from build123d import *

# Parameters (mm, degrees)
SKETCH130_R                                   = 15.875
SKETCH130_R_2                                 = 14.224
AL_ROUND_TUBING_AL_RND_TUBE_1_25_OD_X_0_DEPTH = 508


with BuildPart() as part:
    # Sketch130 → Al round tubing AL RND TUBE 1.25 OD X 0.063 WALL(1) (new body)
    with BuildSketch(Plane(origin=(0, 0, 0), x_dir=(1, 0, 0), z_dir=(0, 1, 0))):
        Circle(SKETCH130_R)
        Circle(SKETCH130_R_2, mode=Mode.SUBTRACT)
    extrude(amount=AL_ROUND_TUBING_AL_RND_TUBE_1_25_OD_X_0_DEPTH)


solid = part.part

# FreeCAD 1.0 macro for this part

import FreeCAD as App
import Part
import Sketcher

V = App.Vector
Q = App.Units.Quantity

doc = App.newDocument("Part")
params = doc.addObject("Spreadsheet::Sheet", "Params")
for row, (alias, value) in enumerate([
    ("sketch1_diameter", "1.25 in"),
    ("sketch1_diameter2", "1.12 in"),
    ("pad1_length", "20 in"),
], start=1):
    params.set(f"A{row}", alias)
    params.set(f"B{row}", "=" + value)
    params.setAlias(f"B{row}", alias)

body = doc.addObject("PartDesign::Body", "Body")

sketch1 = body.newObject("Sketcher::SketchObject", "Sketch")
sketch1.AttachmentSupport = (doc.getObject("XZ_Plane"), [""])
sketch1.MapMode = "FlatFace"
sketch1.addGeometry(Part.Circle(V(0, 0, 0), V(0, 0, 1), 16), False)
sketch1.addGeometry(Part.Circle(V(0, 0, 0), V(0, 0, 1), 14), False)
sketch1.addConstraint(Sketcher.Constraint("Coincident", 0, 3, -1, 1))
sketch1.addConstraint(Sketcher.Constraint("Coincident", 1, 3, -1, 1))
sketch1.addConstraint(Sketcher.Constraint("Diameter", 0, Q("1.25 in")))
sketch1.addConstraint(Sketcher.Constraint("Diameter", 1, Q("1.12 in")))
sketch1.setExpression("Constraints[2]", "Params.sketch1_diameter")
sketch1.setExpression("Constraints[3]", "Params.sketch1_diameter2")
pad1 = body.newObject("PartDesign::Pad", "Pad")
pad1.Profile = sketch1
pad1.setExpression("Length", "Params.pad1_length")
pad1.Reversed = True

doc.recompute()
